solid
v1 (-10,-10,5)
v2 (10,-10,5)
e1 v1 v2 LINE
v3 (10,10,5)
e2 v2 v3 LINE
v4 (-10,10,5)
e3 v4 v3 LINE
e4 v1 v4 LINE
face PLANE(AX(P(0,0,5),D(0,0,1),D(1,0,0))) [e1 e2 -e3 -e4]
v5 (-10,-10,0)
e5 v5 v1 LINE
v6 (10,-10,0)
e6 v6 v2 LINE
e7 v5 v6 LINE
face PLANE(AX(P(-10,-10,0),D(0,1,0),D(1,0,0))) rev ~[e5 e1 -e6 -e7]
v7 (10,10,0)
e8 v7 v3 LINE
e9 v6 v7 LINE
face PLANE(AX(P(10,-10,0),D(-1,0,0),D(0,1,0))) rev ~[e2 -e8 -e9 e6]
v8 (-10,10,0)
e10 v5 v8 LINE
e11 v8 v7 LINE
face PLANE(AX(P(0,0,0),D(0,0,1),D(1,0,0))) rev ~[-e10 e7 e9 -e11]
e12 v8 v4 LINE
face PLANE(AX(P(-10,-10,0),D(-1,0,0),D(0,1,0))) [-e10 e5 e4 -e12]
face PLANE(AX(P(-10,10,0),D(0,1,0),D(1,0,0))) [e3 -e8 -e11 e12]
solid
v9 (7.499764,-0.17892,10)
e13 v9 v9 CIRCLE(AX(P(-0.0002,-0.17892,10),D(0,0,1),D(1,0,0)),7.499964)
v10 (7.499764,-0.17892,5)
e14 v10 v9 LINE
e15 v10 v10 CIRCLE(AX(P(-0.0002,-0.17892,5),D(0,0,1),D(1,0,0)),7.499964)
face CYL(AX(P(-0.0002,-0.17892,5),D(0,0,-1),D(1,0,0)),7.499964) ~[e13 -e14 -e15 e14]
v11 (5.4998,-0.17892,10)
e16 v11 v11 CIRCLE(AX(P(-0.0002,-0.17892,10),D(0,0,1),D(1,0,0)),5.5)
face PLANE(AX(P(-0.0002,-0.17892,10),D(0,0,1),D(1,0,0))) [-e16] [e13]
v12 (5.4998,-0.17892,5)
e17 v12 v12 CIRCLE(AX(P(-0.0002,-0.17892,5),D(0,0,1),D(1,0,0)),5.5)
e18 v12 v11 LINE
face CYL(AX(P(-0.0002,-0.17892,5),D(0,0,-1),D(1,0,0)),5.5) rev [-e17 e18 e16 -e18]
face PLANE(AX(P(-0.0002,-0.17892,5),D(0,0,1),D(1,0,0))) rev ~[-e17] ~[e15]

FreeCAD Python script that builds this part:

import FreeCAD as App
import Part
import Sketcher

V = App.Vector
Q = App.Units.Quantity

doc = App.newDocument("Part")
body = doc.addObject("PartDesign::Body", "Body")

# Sketch on XY plane
sketch1 = body.newObject("Sketcher::SketchObject", "Sketch")
sketch1.AttachmentSupport = (doc.getObject("XY_Plane"), [""])
sketch1.MapMode = "FlatFace"
sketch1.addGeometry(Part.LineSegment(V(-10, 10, 0), V(-10, -10, 0)), False)
sketch1.addGeometry(Part.LineSegment(V(-10, -10, 0), V(10, -10, 0)), False)
sketch1.addGeometry(Part.LineSegment(V(10, -10, 0), V(10, 10, 0)), False)
sketch1.addGeometry(Part.LineSegment(V(10, 10, 0), V(-10, 10, 0)), False)
sketch1.addConstraint(Sketcher.Constraint("Coincident", 0, 2, 1, 1))
sketch1.addConstraint(Sketcher.Constraint("Coincident", 1, 2, 2, 1))
sketch1.addConstraint(Sketcher.Constraint("Coincident", 2, 2, 3, 1))
sketch1.addConstraint(Sketcher.Constraint("Coincident", 3, 2, 0, 1))
sketch1.addConstraint(Sketcher.Constraint("Vertical", 0))
sketch1.addConstraint(Sketcher.Constraint("Horizontal", 1))
sketch1.addConstraint(Sketcher.Constraint("Vertical", 2))
sketch1.addConstraint(Sketcher.Constraint("Horizontal", 3))
sketch1.addConstraint(Sketcher.Constraint("Symmetric", 0, 2, 2, 2, -1, 1))
sketch1.addConstraint(Sketcher.Constraint("Equal", 3, 0))
sketch1.addConstraint(Sketcher.Constraint("DistanceX", 1, 1, 1, 2, Q("20 mm")))
pad1 = body.newObject("PartDesign::Pad", "Pad")
pad1.Profile = sketch1
pad1.Length = 5
body2 = doc.addObject("PartDesign::Body", "Body001")

# Sketch on XY plane
sketch2 = body2.newObject("Sketcher::SketchObject", "Sketch001")
sketch2.AttachmentSupport = (doc.getObject("XY_Plane001"), [""])
sketch2.MapMode = "FlatFace"
sketch2.AttachmentOffset = App.Placement(V(0, 0, 5), App.Rotation())
sketch2.addGeometry(Part.Circle(V(0, 0, 0), V(0, 0, 1), 7), False)
sketch2.addGeometry(Part.Circle(V(0, 0, 0), V(0, 0, 1), 6), False)
sketch2.addConstraint(Sketcher.Constraint("Coincident", 1, 3, 0, 3))
sketch2.addConstraint(Sketcher.Constraint("Diameter", 1, Q("11 mm")))
sketch2.addConstraint(Sketcher.Constraint("Diameter", 0, Q("14.999928 mm")))
sketch2.addConstraint(Sketcher.Constraint("DistanceX", 0, 3, -1, 1, Q("0.0002 mm")))
sketch2.addConstraint(Sketcher.Constraint("DistanceY", 0, 3, -1, 1, Q("0.17892 mm")))
pad2 = body2.newObject("PartDesign::Pad", "Pad001")
pad2.Profile = sketch2
pad2.Length = 5

doc.recompute()
